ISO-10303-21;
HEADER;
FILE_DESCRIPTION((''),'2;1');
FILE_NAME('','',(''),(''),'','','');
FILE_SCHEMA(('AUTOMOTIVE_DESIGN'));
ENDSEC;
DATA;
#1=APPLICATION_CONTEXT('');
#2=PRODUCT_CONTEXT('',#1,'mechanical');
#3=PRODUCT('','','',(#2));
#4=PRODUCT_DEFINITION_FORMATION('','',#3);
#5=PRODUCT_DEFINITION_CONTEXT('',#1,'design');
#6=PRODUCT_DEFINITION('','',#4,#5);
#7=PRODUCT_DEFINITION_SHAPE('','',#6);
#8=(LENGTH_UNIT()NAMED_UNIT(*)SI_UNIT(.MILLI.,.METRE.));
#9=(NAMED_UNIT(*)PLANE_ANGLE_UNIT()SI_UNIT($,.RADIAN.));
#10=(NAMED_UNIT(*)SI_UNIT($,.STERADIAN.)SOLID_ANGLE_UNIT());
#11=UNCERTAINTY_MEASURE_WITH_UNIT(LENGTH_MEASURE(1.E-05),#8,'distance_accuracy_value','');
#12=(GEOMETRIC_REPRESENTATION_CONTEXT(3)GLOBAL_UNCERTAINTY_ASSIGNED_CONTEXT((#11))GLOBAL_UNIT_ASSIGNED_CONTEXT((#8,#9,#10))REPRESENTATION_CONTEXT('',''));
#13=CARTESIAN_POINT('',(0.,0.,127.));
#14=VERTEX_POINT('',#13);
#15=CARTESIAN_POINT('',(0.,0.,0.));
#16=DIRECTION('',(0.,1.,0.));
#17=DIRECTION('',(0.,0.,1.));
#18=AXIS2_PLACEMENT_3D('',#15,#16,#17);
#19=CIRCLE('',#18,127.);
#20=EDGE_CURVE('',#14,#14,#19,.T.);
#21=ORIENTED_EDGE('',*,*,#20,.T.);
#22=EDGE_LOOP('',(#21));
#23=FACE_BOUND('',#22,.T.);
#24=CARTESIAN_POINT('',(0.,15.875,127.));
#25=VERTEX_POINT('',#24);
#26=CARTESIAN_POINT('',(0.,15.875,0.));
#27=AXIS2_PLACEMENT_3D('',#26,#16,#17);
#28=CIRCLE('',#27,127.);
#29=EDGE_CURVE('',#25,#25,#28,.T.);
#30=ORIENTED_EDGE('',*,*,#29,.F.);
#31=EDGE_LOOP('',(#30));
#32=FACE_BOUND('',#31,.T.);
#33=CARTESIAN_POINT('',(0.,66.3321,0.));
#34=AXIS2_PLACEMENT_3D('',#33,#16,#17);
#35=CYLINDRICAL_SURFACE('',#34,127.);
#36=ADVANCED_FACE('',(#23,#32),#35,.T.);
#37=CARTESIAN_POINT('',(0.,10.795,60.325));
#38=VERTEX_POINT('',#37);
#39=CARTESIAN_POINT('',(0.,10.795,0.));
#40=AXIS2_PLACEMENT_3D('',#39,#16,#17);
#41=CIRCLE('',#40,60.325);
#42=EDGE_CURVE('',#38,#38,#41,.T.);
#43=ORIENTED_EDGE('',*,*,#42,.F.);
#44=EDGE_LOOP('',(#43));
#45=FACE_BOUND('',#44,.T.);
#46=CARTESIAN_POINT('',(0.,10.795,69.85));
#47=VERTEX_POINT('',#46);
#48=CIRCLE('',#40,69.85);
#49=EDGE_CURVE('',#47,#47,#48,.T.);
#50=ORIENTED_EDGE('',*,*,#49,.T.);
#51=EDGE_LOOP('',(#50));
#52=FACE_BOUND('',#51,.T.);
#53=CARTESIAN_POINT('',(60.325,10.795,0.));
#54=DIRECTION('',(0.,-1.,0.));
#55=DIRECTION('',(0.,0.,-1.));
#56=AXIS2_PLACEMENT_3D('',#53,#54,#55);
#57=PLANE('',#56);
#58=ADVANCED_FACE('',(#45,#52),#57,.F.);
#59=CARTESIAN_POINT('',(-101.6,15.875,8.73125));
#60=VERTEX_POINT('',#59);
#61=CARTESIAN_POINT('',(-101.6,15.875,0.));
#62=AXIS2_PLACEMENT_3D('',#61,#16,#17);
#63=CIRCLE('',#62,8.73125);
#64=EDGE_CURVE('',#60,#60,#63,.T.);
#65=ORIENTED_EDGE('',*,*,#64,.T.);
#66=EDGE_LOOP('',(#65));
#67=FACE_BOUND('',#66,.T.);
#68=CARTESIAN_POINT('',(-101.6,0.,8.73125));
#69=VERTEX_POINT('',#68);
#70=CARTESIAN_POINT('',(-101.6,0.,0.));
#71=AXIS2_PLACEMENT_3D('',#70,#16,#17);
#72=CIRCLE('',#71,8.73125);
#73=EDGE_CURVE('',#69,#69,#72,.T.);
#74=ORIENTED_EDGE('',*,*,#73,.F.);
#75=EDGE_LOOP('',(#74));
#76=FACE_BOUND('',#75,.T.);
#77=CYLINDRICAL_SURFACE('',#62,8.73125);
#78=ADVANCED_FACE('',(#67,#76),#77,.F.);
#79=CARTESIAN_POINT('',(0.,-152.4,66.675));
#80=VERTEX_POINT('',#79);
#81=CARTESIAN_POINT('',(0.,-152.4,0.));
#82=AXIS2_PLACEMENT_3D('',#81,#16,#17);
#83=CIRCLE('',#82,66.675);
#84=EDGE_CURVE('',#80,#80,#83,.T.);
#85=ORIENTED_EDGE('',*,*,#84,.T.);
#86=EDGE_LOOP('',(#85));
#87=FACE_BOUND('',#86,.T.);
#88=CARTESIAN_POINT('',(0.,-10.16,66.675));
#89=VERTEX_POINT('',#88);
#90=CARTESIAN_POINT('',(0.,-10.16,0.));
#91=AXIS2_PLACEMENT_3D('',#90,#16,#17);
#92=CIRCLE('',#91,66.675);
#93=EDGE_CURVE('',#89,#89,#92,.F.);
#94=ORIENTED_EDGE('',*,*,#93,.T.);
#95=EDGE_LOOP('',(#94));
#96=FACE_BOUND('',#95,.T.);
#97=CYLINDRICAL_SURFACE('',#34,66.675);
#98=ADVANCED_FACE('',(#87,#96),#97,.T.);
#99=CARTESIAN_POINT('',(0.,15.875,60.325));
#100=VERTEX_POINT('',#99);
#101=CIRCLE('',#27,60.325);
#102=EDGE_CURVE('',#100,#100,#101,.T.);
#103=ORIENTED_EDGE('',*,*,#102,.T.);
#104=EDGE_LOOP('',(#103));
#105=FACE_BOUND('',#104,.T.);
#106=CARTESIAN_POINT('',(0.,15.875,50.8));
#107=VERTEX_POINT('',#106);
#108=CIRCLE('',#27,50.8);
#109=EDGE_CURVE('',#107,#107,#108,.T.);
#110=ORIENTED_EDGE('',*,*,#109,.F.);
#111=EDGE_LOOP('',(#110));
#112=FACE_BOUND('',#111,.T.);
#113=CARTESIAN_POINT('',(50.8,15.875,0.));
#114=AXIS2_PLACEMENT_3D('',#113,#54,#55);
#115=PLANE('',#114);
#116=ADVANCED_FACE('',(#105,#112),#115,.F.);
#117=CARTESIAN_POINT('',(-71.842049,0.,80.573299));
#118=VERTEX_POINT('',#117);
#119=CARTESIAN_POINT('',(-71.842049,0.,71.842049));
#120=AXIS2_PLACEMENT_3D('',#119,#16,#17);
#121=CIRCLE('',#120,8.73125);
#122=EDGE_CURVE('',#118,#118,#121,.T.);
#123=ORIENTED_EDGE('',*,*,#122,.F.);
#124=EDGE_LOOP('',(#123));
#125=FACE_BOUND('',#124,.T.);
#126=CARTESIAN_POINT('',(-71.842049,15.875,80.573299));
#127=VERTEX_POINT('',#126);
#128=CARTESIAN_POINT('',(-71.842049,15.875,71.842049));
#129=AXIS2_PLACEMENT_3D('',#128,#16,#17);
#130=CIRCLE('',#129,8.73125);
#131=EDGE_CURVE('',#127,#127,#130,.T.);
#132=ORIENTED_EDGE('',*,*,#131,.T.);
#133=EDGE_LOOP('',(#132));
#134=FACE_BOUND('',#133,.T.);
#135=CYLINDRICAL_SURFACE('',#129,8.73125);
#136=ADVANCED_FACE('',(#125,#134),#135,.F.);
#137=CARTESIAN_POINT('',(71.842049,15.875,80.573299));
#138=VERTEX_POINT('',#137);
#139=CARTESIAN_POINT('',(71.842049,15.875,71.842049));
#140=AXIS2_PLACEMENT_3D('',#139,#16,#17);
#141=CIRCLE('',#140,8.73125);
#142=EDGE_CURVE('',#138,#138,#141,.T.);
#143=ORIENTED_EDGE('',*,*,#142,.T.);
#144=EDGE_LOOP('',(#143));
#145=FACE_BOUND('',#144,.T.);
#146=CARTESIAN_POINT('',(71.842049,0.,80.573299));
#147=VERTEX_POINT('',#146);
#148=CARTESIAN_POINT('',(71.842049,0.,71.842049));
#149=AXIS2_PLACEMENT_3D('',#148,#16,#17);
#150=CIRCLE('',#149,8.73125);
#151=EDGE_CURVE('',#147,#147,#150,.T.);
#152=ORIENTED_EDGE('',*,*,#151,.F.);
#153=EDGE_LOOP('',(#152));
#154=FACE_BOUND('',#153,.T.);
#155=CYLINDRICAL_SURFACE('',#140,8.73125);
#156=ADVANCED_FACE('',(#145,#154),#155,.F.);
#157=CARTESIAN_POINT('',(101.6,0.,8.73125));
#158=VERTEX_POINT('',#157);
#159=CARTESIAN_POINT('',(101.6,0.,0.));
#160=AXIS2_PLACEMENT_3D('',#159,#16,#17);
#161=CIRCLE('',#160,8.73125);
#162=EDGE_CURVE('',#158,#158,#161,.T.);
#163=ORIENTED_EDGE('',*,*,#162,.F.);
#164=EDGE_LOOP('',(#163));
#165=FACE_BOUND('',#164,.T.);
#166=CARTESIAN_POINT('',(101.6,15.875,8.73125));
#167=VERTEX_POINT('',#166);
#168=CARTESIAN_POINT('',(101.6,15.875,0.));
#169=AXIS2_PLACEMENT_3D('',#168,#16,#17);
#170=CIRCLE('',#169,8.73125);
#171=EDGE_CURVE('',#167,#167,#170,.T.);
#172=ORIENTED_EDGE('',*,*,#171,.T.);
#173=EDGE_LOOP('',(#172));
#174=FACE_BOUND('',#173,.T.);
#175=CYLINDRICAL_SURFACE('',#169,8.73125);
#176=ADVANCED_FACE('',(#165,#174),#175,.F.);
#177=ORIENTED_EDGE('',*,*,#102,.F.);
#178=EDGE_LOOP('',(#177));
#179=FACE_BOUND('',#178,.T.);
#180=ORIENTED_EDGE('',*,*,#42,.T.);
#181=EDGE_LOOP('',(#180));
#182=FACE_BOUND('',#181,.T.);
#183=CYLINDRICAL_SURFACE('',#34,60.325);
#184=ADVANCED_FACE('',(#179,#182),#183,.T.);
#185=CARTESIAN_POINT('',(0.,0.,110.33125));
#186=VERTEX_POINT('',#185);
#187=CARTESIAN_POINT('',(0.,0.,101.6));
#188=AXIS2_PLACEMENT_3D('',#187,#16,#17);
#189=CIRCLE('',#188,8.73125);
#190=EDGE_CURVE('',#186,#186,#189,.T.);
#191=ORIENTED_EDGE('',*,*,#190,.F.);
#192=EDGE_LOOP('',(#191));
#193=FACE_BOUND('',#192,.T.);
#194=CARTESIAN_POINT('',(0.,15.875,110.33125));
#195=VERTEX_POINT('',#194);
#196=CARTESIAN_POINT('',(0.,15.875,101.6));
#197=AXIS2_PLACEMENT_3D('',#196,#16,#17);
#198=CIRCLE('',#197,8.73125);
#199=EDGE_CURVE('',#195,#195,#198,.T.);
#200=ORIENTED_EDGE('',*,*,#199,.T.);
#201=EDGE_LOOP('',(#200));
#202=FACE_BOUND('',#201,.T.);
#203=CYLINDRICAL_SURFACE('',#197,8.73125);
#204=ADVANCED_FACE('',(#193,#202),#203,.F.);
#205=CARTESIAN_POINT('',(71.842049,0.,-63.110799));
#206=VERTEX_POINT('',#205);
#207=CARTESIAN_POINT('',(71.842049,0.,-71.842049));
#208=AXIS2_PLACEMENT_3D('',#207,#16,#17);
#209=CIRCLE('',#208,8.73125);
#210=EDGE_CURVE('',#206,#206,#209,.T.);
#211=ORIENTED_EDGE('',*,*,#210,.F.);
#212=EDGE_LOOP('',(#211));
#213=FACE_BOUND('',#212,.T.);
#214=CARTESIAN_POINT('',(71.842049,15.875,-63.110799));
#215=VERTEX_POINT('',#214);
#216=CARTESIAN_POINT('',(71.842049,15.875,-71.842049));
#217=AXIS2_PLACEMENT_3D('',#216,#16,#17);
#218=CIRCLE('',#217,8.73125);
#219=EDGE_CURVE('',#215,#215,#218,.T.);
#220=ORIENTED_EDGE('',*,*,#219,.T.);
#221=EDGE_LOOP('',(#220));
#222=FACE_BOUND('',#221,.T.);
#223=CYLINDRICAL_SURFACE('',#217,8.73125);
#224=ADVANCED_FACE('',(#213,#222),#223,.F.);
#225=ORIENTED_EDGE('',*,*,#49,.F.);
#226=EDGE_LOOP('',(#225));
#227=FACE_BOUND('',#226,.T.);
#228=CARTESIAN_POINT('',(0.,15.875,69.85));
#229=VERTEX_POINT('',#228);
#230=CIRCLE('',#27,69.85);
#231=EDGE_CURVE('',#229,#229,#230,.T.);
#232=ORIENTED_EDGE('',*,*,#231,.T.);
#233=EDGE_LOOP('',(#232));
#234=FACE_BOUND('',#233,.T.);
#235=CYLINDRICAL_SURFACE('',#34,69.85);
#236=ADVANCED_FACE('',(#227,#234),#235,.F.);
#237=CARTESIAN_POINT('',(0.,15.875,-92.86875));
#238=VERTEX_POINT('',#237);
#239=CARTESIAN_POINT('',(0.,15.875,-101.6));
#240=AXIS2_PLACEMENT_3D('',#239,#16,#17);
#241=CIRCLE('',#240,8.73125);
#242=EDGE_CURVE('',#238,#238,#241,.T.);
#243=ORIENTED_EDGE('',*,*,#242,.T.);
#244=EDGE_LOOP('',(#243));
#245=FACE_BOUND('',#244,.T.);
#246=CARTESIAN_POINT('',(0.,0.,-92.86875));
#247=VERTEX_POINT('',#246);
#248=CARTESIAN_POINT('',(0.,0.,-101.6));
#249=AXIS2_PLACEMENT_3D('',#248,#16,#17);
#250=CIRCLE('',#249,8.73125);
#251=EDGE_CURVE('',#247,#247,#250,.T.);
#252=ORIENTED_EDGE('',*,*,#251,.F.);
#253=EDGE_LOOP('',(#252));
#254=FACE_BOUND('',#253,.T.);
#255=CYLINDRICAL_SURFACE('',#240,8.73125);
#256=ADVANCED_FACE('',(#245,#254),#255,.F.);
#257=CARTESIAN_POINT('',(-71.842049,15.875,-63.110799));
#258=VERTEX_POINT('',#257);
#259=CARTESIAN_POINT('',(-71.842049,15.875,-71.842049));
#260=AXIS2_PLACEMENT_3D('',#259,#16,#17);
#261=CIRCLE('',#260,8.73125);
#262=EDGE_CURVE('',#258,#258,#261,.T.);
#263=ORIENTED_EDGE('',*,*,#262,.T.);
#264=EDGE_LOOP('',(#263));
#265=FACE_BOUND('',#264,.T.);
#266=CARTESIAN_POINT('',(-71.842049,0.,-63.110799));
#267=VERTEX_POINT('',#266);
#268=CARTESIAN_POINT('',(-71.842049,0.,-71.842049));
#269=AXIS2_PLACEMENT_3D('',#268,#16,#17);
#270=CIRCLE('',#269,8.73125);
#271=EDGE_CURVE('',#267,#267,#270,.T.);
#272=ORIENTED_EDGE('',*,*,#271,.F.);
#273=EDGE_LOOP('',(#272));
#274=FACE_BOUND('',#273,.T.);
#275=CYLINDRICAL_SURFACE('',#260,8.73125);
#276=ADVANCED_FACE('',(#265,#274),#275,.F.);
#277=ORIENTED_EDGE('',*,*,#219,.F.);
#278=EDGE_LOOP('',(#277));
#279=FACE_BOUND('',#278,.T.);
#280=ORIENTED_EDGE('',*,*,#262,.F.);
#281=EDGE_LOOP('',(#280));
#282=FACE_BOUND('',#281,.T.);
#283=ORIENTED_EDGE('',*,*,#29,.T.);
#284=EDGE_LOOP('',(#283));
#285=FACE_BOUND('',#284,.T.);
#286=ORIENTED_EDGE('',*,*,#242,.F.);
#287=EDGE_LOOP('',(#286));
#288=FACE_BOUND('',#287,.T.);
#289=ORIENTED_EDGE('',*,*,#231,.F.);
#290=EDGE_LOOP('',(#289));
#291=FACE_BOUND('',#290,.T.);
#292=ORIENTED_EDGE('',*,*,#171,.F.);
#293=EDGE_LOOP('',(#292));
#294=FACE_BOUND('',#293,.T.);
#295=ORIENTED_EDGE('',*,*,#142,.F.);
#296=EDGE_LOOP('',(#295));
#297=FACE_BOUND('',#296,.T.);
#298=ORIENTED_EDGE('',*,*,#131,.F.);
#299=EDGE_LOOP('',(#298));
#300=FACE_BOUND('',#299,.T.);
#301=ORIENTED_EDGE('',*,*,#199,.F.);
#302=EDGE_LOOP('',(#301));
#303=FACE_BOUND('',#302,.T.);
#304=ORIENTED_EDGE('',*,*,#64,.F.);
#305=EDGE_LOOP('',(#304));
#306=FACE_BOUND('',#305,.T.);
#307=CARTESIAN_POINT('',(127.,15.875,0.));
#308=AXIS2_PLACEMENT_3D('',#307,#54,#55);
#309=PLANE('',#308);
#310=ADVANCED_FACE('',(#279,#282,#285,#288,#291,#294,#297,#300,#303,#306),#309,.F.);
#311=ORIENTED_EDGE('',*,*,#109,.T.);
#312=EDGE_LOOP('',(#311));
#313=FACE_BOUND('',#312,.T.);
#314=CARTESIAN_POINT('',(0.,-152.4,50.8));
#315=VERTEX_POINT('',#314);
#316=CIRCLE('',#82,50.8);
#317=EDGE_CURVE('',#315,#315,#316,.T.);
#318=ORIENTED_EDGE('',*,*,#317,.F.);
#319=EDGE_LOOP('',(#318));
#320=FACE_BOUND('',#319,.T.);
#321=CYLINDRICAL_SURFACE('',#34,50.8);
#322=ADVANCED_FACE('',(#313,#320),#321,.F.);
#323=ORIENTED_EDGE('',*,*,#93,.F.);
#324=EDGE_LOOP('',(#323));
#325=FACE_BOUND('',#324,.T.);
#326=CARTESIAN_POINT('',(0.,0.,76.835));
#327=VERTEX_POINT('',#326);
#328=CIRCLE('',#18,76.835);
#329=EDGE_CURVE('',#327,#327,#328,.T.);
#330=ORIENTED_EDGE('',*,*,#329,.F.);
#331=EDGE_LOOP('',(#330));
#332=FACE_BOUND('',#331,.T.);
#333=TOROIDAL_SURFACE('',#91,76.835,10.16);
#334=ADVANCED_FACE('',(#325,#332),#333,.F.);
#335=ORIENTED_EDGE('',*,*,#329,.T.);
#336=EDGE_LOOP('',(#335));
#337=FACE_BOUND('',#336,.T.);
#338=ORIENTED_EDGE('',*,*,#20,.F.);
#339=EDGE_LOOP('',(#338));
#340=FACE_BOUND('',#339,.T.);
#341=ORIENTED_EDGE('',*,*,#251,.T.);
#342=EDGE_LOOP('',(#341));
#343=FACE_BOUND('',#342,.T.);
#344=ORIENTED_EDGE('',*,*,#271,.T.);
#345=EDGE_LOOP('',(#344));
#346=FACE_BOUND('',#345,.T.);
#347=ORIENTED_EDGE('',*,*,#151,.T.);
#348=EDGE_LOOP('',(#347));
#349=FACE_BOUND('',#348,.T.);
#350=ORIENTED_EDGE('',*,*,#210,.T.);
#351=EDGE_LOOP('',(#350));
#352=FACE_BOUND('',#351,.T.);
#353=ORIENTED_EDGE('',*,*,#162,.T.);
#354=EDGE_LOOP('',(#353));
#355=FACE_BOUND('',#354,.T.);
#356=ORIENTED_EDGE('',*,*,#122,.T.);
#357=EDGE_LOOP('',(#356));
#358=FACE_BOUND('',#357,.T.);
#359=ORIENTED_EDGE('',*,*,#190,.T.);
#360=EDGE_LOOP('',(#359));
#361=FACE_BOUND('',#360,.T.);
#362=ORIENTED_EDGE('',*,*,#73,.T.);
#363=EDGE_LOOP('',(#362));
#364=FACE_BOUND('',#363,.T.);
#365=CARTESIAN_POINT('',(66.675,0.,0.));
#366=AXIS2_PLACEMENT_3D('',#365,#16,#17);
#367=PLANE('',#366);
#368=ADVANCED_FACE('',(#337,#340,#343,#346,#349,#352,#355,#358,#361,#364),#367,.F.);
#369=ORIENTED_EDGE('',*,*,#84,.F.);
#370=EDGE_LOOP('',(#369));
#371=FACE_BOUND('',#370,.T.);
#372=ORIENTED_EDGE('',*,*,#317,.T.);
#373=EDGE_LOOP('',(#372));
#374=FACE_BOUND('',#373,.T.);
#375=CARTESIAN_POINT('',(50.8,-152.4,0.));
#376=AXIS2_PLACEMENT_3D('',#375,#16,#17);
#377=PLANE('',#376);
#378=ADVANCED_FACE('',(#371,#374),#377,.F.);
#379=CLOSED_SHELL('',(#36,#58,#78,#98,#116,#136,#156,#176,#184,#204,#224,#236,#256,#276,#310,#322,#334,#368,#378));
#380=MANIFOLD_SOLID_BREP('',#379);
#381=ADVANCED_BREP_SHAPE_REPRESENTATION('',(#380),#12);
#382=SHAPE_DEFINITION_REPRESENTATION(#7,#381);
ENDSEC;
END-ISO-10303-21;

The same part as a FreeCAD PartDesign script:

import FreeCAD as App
import Part
import Sketcher

V = App.Vector
Q = App.Units.Quantity


def edges_at(feature, points):
    """Names of the edges that pass closest to the given points."""
    edges = feature.Shape.Edges
    near = lambda p: min(range(len(edges)), key=lambda i: edges[i].distToShape(Part.Vertex(*p))[0])
    return sorted({f"Edge{near(p) + 1}" for p in points})

doc = App.newDocument("Part")
body = doc.addObject("PartDesign::Body", "Body")

sketch1 = body.newObject("Sketcher::SketchObject", "Sketch")
sketch1.AttachmentSupport = (doc.getObject("XY_Plane"), [""])
sketch1.MapMode = "FlatFace"
sketch1.addGeometry([
    Part.LineSegment(V(51, -152, 0), V(67, -152, 0)),
    Part.LineSegment(V(67, -152, 0), V(67, 0, 0)),
    Part.LineSegment(V(67, 0, 0), V(127, 0, 0)),
    Part.LineSegment(V(127, 0, 0), V(127, 16, 0)),
    Part.LineSegment(V(127, 16, 0), V(70, 16, 0)),
    Part.LineSegment(V(70, 16, 0), V(70, 11, 0)),
    Part.LineSegment(V(70, 11, 0), V(60, 11, 0)),
    Part.LineSegment(V(60, 11, 0), V(60, 16, 0)),
    Part.LineSegment(V(60, 16, 0), V(51, 16, 0)),
    Part.LineSegment(V(51, 16, 0), V(51, -152, 0)),
], False)
sketch1.addConstraint([
    Sketcher.Constraint("Coincident", 0, 2, 1, 1),
    Sketcher.Constraint("Coincident", 1, 2, 2, 1),
    Sketcher.Constraint("Coincident", 2, 2, 3, 1),
    Sketcher.Constraint("Coincident", 3, 2, 4, 1),
    Sketcher.Constraint("Coincident", 4, 2, 5, 1),
    Sketcher.Constraint("Coincident", 5, 2, 6, 1),
    Sketcher.Constraint("Coincident", 6, 2, 7, 1),
    Sketcher.Constraint("Coincident", 7, 2, 8, 1),
    Sketcher.Constraint("Coincident", 8, 2, 9, 1),
    Sketcher.Constraint("Coincident", 9, 2, 0, 1),
    Sketcher.Constraint("Horizontal", 0),
    Sketcher.Constraint("Vertical", 1),
    Sketcher.Constraint("Horizontal", 2),
    Sketcher.Constraint("Vertical", 3),
    Sketcher.Constraint("Horizontal", 4),
    Sketcher.Constraint("Vertical", 5),
    Sketcher.Constraint("Horizontal", 6),
    Sketcher.Constraint("Vertical", 7),
    Sketcher.Constraint("Horizontal", 8),
    Sketcher.Constraint("Vertical", 9),
    Sketcher.Constraint("PointOnObject", 1, 2, -1),
    Sketcher.Constraint("Horizontal", 4, 2, 7, 2),
    Sketcher.Constraint("Equal", 6, 8),
    Sketcher.Constraint("Equal", 0, 3),
    Sketcher.Constraint("DistanceY", 1, 1, 1, 2, Q("6 in")),
    Sketcher.Constraint("DistanceY", 5, 2, 5, 1, Q("0.2 in")),
    Sketcher.Constraint("DistanceX", -1, 1, 2, 2, Q("5 in")),
    Sketcher.Constraint("DistanceX", -1, 1, 8, 2, Q("2 in")),
    Sketcher.Constraint("DistanceX", 4, 2, 4, 1, Q("2.25 in")),
    Sketcher.Constraint("DistanceX", 0, 1, 0, 2, Q("0.625 in")),
])
revolution = body.newObject("PartDesign::Revolution", "Revolution")
revolution.Profile = sketch1
revolution.ReferenceAxis = (sketch1, ["V_Axis"])
revolution.Angle = 360
doc.recompute()

fillet = body.newObject("PartDesign::Fillet", "Fillet")
fillet.Base = (revolution, edges_at(revolution, [(-66.675, 0, 0)]))
fillet.Radius = Q("0.4 in")

sketch2 = body.newObject("Sketcher::SketchObject", "Sketch001")
sketch2.AttachmentSupport = (doc.getObject("XZ_Plane"), [""])
sketch2.MapMode = "FlatFace"
sketch2.AttachmentOffset = App.Placement(V(0, 0, -0.625 * 25.4), App.Rotation())
sketch2.addGeometry(Part.Circle(V(0, -102, 0), V(0, 0, 1), 9), False)
sketch2.addConstraint([
    Sketcher.Constraint("PointOnObject", 0, 3, -2),
    Sketcher.Constraint("Diameter", 0, Q("0.6875 in")),
    Sketcher.Constraint("DistanceY", 0, 3, -1, 1, Q("4 in")),
])
doc.recompute()
hole = body.newObject("PartDesign::Hole", "Hole")
hole.Profile = sketch2
hole.ThreadType = "None"
hole.Diameter = Q("0.6875 in")
hole.DepthType = "ThroughAll"
hole.Reversed = True
doc.recompute()

polarpattern = body.newObject("PartDesign::PolarPattern", "PolarPattern")
polarpattern.Originals = [hole]
polarpattern.Axis = (doc.getObject("Y_Axis"), [""])
polarpattern.Angle = 360
polarpattern.Occurrences = 8
body.Tip = polarpattern

doc.recompute()
